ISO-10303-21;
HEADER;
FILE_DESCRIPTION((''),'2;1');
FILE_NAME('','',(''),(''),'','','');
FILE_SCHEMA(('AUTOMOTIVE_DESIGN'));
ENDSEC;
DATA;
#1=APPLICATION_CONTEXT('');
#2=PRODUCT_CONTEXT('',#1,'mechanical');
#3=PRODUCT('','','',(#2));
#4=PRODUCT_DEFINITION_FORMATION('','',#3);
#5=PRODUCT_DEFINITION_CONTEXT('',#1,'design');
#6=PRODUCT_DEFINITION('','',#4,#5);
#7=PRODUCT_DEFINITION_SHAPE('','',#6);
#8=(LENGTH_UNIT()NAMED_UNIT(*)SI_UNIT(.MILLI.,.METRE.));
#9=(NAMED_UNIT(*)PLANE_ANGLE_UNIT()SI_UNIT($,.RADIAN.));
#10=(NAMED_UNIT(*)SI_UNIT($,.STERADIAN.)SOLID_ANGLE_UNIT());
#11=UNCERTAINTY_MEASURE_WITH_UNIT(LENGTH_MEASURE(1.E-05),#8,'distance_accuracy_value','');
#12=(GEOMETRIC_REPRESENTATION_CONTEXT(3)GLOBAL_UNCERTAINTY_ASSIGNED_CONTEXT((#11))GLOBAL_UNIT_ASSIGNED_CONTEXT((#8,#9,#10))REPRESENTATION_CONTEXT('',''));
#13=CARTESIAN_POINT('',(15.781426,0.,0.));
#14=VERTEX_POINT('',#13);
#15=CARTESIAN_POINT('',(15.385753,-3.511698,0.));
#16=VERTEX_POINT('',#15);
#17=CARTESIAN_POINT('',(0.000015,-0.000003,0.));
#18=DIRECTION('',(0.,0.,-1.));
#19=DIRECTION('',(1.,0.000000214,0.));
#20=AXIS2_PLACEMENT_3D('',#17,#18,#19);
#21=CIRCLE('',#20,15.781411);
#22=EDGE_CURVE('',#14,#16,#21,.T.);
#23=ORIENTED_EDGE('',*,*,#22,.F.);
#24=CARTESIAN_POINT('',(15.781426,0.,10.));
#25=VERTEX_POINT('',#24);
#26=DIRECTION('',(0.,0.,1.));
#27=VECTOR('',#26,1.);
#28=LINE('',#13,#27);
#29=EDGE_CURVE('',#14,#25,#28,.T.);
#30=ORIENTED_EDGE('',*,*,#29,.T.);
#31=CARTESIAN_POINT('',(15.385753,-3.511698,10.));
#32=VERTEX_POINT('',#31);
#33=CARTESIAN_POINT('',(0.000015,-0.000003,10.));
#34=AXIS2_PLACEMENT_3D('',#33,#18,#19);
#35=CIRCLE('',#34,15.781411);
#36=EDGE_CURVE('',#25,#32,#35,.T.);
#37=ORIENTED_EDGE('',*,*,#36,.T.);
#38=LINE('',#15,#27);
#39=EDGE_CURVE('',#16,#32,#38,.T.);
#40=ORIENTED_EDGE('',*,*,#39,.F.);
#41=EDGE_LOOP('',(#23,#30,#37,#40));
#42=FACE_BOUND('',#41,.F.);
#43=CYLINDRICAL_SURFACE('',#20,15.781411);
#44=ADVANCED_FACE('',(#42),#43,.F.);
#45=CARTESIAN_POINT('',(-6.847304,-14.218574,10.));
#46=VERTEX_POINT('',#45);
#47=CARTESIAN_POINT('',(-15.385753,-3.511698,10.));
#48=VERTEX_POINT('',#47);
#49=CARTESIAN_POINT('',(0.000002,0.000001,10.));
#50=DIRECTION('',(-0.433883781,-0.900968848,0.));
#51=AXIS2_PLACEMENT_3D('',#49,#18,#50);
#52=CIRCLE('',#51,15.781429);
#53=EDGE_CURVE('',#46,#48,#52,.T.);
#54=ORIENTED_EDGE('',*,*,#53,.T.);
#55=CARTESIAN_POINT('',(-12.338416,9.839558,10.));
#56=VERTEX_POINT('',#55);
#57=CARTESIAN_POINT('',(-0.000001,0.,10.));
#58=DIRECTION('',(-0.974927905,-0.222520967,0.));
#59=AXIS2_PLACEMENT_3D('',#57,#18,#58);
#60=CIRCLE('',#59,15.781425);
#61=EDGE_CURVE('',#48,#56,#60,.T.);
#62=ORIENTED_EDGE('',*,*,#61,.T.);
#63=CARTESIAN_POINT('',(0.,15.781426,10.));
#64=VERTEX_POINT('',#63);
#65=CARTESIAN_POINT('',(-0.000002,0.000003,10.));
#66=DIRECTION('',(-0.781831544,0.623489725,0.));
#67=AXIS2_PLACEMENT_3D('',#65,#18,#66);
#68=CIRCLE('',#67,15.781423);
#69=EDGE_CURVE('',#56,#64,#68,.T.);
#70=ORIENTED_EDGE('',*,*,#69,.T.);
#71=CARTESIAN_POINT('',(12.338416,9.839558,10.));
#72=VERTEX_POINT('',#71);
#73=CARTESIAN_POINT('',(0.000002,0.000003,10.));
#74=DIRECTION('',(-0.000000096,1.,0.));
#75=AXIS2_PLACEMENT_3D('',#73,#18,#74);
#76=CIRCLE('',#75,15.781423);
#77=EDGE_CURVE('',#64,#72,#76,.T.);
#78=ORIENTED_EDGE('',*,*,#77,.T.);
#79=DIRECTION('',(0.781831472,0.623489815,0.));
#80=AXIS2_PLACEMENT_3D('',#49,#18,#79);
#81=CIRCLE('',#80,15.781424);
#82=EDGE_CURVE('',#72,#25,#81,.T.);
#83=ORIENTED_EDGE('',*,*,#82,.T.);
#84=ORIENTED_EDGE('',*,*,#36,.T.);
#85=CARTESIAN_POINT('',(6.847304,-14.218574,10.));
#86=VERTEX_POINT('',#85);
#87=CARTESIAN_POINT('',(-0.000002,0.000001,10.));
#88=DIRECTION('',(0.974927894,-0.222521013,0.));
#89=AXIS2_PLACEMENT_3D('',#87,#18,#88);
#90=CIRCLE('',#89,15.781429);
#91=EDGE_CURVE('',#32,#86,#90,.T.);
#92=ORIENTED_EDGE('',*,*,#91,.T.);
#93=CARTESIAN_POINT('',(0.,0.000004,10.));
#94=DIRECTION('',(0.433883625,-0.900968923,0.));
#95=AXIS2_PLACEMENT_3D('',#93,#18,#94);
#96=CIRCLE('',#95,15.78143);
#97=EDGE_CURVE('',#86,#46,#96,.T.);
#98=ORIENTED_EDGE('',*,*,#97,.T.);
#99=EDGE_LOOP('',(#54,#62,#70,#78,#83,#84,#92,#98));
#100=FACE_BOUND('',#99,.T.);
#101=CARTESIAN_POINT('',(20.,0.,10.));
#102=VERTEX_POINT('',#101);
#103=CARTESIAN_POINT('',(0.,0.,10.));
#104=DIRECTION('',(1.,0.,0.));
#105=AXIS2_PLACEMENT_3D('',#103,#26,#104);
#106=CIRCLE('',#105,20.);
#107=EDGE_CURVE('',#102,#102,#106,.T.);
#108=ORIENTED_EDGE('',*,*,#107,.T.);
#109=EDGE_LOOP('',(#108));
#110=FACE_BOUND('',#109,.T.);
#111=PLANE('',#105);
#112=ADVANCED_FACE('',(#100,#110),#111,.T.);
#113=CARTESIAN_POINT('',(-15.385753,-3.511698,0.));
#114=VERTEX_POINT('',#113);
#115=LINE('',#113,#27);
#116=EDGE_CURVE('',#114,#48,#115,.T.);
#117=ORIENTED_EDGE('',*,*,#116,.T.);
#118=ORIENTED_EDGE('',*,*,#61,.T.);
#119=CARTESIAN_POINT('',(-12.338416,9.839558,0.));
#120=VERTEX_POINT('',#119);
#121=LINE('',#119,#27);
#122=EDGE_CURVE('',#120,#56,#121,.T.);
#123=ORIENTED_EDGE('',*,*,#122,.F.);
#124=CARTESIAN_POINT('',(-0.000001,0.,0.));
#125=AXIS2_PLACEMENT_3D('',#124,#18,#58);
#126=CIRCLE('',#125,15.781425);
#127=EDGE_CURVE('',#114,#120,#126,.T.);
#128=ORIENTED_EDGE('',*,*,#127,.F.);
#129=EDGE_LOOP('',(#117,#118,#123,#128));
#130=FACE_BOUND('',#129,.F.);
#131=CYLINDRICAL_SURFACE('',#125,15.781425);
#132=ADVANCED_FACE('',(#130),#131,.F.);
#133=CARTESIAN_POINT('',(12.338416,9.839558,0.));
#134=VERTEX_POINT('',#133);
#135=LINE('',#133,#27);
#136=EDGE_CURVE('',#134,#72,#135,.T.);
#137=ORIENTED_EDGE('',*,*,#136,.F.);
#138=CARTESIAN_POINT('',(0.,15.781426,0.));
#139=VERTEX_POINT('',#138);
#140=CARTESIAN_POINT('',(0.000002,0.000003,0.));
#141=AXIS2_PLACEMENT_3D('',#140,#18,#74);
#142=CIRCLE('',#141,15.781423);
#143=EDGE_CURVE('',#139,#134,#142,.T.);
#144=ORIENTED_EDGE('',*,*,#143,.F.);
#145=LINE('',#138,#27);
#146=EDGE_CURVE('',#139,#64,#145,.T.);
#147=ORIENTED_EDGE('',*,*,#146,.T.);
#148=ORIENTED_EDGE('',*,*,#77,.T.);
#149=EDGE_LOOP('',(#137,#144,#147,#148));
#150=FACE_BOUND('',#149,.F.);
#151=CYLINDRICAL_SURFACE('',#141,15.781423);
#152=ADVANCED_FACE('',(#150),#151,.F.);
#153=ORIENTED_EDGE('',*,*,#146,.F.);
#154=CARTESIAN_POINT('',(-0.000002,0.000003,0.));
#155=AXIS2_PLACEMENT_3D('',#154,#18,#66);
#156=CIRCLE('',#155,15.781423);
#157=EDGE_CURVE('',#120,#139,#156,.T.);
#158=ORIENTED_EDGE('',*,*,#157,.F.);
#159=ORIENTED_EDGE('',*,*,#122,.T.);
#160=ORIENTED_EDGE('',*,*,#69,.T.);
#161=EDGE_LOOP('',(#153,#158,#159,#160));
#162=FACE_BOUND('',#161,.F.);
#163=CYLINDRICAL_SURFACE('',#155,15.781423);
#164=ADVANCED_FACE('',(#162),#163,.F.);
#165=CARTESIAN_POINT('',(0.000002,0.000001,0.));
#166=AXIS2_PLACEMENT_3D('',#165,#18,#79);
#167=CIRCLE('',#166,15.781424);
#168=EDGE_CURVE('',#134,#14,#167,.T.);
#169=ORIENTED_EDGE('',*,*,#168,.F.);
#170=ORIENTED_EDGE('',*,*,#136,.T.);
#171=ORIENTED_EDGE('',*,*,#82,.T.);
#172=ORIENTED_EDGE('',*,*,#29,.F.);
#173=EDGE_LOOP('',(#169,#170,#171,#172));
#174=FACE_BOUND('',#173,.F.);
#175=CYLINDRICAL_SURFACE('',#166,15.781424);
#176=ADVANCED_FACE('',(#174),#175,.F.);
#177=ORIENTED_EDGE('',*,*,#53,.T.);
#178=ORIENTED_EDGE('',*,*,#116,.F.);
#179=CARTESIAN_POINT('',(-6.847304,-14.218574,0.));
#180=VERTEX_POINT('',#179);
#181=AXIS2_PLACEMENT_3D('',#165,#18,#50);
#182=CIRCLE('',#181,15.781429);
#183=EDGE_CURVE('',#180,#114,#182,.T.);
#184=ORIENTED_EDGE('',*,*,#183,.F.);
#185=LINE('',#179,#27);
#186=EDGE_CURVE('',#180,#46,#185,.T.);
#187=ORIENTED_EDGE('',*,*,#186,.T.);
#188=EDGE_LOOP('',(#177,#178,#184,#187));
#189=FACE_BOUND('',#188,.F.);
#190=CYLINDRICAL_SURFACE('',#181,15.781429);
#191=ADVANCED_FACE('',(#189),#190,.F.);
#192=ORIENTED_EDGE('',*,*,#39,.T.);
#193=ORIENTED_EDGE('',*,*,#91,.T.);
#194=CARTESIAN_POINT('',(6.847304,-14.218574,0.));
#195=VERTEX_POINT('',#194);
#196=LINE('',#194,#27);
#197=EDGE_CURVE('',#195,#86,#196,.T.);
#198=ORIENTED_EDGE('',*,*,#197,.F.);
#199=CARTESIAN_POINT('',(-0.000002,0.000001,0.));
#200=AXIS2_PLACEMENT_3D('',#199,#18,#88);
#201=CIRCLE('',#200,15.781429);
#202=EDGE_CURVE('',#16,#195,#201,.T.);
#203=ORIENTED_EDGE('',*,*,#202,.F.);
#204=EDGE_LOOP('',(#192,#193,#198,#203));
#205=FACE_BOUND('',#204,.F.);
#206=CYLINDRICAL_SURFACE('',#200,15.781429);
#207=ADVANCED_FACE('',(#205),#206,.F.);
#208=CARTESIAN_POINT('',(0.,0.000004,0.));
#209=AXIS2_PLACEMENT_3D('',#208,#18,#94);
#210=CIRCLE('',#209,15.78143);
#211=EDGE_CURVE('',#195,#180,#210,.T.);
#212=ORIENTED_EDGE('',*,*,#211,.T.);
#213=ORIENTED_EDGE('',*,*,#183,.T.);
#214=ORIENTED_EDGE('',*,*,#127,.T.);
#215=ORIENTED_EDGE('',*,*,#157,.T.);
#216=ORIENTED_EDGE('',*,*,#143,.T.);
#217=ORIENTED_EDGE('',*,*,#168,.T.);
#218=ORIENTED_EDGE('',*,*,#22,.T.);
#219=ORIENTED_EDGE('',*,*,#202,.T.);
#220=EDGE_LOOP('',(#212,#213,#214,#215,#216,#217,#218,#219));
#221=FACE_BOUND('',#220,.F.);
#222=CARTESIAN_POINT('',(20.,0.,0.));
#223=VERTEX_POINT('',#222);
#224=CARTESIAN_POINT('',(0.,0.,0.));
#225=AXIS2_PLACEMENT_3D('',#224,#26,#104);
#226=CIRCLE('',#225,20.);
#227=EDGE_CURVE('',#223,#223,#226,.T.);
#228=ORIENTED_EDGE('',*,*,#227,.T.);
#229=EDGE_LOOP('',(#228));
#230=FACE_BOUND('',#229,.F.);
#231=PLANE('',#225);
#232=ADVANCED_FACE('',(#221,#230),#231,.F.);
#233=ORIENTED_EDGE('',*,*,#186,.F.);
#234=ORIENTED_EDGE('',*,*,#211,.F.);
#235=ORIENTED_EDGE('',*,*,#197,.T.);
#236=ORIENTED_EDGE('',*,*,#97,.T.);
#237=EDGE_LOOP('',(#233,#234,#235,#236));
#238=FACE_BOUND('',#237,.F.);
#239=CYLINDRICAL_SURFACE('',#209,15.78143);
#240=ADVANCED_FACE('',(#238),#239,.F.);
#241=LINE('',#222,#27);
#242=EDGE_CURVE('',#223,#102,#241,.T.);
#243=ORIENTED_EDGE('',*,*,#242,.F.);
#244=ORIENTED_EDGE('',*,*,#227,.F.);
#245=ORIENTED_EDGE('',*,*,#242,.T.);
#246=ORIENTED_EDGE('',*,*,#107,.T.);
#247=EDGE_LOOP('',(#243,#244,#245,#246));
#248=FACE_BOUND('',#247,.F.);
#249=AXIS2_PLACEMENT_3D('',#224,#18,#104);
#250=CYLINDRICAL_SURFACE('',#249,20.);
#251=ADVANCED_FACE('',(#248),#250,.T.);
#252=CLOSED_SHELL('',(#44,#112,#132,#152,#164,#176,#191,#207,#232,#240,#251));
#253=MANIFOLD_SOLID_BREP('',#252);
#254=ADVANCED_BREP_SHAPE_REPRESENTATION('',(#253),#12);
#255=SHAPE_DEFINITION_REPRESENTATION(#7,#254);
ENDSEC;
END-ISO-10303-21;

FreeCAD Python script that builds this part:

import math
import FreeCAD as App
import Part
import Sketcher
Q = App.Units.Quantity

doc = App.newDocument("Part")
body = doc.addObject("PartDesign::Body", "Body")

sketch1 = body.newObject("Sketcher::SketchObject", "Sketch")
sketch1.AttachmentSupport = (doc.getObject("XY_Plane"), [""])
sketch1.MapMode = "FlatFace"
sketch1.addGeometry([
    Part.Circle(App.Vector(0, 0, 0), App.Vector(0, 0, 1), 20),
    Part.ArcOfCircle(Part.Circle(App.Vector(0.000002, 0.000001, 0), App.Vector(0, 0, 1), 15.781424), math.radians(-0.000004), math.radians(38.57143)),
    Part.ArcOfCircle(Part.Circle(App.Vector(0.000015, -0.000003, 0), App.Vector(0, 0, 1), 15.781411), math.radians(-12.857144), math.radians(0.000012)),
    Part.ArcOfCircle(Part.Circle(App.Vector(-0.000002, 0.000001, 0), App.Vector(0, 0, 1), 15.781429), math.radians(-64.285712), math.radians(-12.857148)),
    Part.ArcOfCircle(Part.Circle(App.Vector(0, 0.000004, 0), App.Vector(0, 0, 1), 15.78143), math.radians(-115.714278), math.radians(-64.285722)),
    Part.ArcOfCircle(Part.Circle(App.Vector(0.000002, 0.000001, 0), App.Vector(0, 0, 1), 15.781429), math.radians(-167.142852), math.radians(-115.714288)),
    Part.ArcOfCircle(Part.Circle(App.Vector(-0.000001, 0, 0), App.Vector(0, 0, 1), 15.781425), math.radians(141.42857), math.radians(192.857145)),
    Part.ArcOfCircle(Part.Circle(App.Vector(-0.000002, 0.000003, 0), App.Vector(0, 0, 1), 15.781423), math.radians(89.999995), math.radians(141.428577)),
    Part.ArcOfCircle(Part.Circle(App.Vector(0.000002, 0.000003, 0), App.Vector(0, 0, 1), 15.781423), math.radians(38.571423), math.radians(90.000005)),
], False)
sketch1.addConstraint([
    Sketcher.Constraint("Tangent", 1, 1, 2, 2),
    Sketcher.Constraint("Tangent", 2, 1, 3, 2),
    Sketcher.Constraint("Tangent", 3, 1, 4, 2),
    Sketcher.Constraint("Tangent", 4, 1, 5, 2),
    Sketcher.Constraint("Tangent", 5, 1, 6, 2),
    Sketcher.Constraint("Tangent", 6, 1, 7, 2),
    Sketcher.Constraint("Tangent", 7, 1, 8, 2),
    Sketcher.Constraint("Tangent", 8, 1, 1, 2),
    Sketcher.Constraint("Coincident", 0, 3, -1, 1),
    Sketcher.Constraint("Coincident", 1, 3, -1, 1),
    Sketcher.Constraint("Coincident", 3, 3, -1, 1),
    Sketcher.Constraint("Coincident", 5, 3, -1, 1),
    Sketcher.Constraint("Equal", 1, 6),
    Sketcher.Constraint("PointOnObject", 1, 1, -1),
    Sketcher.Constraint("PointOnObject", 7, 1, -2),
    Sketcher.Constraint("Horizontal", 3, 1, 4, 1),
    Sketcher.Constraint("Horizontal", 2, 1, 5, 1),
    Sketcher.Constraint("Horizontal", 6, 1, 8, 1),
    Sketcher.Constraint("Diameter", 0, Q("40 mm")),
    Sketcher.Constraint("Radius", 2, Q("15.781411 mm")),
    Sketcher.Constraint("DistanceY", 2, 1, 1, 3, Q("3.511699 mm")),
    Sketcher.Constraint("DistanceX", 1, 3, 3, 1, Q("6.847302 mm")),
    Sketcher.Constraint("DistanceX", 2, 3, 8, 1, Q("12.338401 mm")),
])
pad1 = body.newObject("PartDesign::Pad", "Pad")
pad1.Profile = sketch1
pad1.Length = 10

doc.recompute()
